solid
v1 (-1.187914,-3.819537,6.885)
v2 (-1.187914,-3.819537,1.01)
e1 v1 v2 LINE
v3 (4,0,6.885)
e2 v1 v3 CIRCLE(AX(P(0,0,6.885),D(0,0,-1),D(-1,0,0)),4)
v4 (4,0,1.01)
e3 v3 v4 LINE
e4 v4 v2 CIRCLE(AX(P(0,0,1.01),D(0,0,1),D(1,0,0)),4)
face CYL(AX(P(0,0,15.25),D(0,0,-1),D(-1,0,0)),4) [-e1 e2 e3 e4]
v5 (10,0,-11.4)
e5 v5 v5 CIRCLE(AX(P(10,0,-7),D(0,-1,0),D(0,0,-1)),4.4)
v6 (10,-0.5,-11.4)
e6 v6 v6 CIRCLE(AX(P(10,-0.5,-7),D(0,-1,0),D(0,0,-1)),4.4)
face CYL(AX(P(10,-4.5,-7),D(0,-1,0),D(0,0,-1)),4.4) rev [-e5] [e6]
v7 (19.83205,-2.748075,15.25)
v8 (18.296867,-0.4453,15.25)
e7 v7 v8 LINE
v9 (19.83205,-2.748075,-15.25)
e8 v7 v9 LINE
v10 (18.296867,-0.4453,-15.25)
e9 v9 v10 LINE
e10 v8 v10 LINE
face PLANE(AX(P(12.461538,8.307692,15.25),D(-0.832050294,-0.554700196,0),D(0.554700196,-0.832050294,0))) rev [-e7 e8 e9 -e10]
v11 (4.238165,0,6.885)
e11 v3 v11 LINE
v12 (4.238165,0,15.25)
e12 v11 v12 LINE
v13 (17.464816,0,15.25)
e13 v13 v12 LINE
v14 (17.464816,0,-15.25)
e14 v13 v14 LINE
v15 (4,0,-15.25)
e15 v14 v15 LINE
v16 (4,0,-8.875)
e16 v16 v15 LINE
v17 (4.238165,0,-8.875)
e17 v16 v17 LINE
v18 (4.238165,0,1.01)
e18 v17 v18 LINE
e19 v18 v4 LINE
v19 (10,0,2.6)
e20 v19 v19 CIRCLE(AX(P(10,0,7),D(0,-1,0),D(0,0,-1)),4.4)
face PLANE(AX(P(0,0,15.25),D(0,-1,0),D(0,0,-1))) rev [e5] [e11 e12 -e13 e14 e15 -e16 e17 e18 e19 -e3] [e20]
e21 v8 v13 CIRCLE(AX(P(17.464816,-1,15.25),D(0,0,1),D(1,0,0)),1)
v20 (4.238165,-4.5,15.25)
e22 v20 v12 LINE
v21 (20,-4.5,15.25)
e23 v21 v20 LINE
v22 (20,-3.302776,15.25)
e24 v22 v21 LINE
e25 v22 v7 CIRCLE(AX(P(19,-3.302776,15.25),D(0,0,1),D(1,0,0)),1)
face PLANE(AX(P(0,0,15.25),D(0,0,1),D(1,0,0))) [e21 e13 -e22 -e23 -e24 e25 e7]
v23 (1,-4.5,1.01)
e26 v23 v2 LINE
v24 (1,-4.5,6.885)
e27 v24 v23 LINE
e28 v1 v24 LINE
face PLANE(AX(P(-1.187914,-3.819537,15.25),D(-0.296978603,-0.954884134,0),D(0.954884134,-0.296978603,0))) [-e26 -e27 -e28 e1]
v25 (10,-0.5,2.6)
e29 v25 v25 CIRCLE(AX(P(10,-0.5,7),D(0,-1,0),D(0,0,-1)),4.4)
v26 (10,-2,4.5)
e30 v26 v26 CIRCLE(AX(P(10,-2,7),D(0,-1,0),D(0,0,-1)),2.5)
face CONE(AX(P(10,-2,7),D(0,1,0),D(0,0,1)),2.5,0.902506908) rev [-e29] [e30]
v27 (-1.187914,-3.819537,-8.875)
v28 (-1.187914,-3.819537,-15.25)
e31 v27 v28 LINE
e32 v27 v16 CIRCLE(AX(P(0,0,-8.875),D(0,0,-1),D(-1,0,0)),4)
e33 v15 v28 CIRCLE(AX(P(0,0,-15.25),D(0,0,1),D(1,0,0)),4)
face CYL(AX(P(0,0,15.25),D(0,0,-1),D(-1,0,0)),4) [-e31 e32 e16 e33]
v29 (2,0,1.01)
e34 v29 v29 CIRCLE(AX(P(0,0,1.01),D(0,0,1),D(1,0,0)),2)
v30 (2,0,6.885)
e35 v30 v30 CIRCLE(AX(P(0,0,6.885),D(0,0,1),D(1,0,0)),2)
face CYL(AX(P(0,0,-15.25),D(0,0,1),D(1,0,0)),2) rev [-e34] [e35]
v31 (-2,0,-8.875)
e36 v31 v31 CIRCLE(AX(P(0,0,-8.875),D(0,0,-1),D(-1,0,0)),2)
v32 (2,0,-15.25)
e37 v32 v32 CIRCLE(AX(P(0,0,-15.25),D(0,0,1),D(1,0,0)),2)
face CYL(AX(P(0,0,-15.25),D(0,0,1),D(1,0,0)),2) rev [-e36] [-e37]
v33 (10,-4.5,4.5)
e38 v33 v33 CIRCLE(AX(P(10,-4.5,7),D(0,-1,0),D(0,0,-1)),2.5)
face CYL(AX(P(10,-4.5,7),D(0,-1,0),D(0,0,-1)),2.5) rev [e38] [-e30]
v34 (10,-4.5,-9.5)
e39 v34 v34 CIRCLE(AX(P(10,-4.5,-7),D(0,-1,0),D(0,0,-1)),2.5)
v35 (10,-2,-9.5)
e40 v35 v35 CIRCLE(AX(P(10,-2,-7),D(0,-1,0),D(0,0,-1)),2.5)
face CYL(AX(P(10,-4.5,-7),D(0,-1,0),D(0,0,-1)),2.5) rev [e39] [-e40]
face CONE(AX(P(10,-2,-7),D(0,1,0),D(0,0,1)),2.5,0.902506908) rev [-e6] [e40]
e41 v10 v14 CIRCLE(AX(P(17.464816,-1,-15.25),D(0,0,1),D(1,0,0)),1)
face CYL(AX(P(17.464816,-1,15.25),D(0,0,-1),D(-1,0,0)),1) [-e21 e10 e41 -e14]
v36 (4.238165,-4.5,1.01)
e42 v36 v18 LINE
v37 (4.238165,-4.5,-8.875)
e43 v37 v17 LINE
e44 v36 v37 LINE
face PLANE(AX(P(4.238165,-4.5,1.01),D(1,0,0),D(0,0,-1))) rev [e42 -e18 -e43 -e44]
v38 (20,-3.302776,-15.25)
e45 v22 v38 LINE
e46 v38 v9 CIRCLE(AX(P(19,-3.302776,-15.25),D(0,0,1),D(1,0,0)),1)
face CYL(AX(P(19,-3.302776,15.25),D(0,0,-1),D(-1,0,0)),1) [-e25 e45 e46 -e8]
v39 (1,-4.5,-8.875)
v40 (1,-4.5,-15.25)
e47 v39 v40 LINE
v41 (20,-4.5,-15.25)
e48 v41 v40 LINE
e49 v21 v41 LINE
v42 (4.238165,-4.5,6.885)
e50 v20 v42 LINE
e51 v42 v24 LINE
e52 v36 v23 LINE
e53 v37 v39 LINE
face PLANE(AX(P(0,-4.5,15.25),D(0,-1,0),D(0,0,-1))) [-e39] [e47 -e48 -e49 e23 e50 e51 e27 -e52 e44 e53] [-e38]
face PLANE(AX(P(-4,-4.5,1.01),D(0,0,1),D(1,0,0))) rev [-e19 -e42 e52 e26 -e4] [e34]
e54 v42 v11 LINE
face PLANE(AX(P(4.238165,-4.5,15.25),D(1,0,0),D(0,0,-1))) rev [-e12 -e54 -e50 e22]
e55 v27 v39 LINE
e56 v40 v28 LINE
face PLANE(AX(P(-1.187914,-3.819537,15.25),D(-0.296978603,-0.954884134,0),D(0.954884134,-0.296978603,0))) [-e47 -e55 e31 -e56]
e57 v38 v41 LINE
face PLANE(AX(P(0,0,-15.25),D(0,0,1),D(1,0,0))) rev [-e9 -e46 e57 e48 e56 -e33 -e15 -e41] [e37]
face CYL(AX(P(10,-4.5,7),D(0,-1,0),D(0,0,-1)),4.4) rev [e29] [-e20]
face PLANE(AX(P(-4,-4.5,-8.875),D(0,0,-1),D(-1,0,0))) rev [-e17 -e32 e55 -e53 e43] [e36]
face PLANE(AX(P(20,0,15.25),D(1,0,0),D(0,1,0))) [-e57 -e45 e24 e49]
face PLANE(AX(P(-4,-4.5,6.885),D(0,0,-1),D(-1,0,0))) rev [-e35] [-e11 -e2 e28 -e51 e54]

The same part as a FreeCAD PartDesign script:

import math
import FreeCAD as App
import Part
import Sketcher
from FreeCAD import Vector

doc = App.newDocument("Part")
body = doc.addObject("PartDesign::Body", "Body")

# Sketch on XY plane
sketch1 = body.newObject("Sketcher::SketchObject", "Sketch")
sketch1.AttachmentSupport = (doc.getObject("XY_Plane"), [""])
sketch1.MapMode = "FlatFace"
sketch1.addGeometry([
    Part.LineSegment(Vector(17.464816, 0, 0), Vector(4, 0, 0)),  # 0
    Part.ArcOfCircle(Part.Circle(Vector(0, 0, 0), Vector(0, 0, 1), 4), math.radians(0), math.radians(252.723779)),  # 1
    Part.LineSegment(Vector(-1.187914, -3.819537, 0), Vector(1, -4.5, 0)),  # 2
    Part.LineSegment(Vector(1, -4.5, 0), Vector(20, -4.5, 0)),  # 3
    Part.LineSegment(Vector(20, -4.5, 0), Vector(20, -3.302776, 0)),  # 4
    Part.ArcOfCircle(Part.Circle(Vector(19, -3.302776, 0), Vector(0, 0, 1), 1), math.radians(0), math.radians(33.690067)),  # 5
    Part.LineSegment(Vector(19.83205, -2.748075, 0), Vector(18.296867, -0.4453, 0)),  # 6
    Part.ArcOfCircle(Part.Circle(Vector(17.464816, -1, 0), Vector(0, 0, 1), 1), math.radians(33.690067), math.radians(90)),  # 7
], False)
sketch1.addConstraint([
    Sketcher.Constraint("Coincident", 0, 2, 1, 1),
    Sketcher.Constraint("Tangent", 1, 2, 2, 1),
    Sketcher.Constraint("Coincident", 2, 2, 3, 1),
    Sketcher.Constraint("Coincident", 3, 2, 4, 1),
    Sketcher.Constraint("Tangent", 4, 2, 5, 1),
    Sketcher.Constraint("Tangent", 5, 2, 6, 1),
    Sketcher.Constraint("Tangent", 6, 2, 7, 1),
    Sketcher.Constraint("Tangent", 7, 2, 0, 1),
    Sketcher.Constraint("Horizontal", 0),
    Sketcher.Constraint("Horizontal", 3),
    Sketcher.Constraint("Vertical", 4),
    Sketcher.Constraint("Coincident", 1, 3, -1, 1),
    Sketcher.Constraint("Equal", 5, 7),
    Sketcher.Constraint("PointOnObject", 0, 2, -1),
    Sketcher.Constraint("Radius", 1, 4.0),
    Sketcher.Constraint("Radius", 5, 1.0),
    Sketcher.Constraint("DistanceX", 3, 1, 3, 2, 19.0),
    Sketcher.Constraint("DistanceX", -1, 1, 5, 3, 19.0),
    Sketcher.Constraint("DistanceY", 2, 2, -1, 1, 4.5),
    Sketcher.Constraint("DistanceY", 6, 2, -1, 1, 0.4453),
    Sketcher.Constraint("Distance", 6, 2.767592),
])
pad1 = body.newObject("PartDesign::Pad", "Pad")
pad1.Profile = sketch1
pad1.Length = 30.5
pad1.Midplane = True

# Sketch on XZ plane
sketch2 = body.newObject("Sketcher::SketchObject", "Sketch001")
sketch2.AttachmentSupport = (doc.getObject("XZ_Plane"), [""])
sketch2.MapMode = "FlatFace"
sketch2.addGeometry([
    Part.LineSegment(Vector(-4, 6.885, 0), Vector(-4, 15.25, 0)),  # 0
    Part.LineSegment(Vector(-4, 15.25, 0), Vector(4.238165, 15.25, 0)),  # 1
    Part.LineSegment(Vector(4.238165, 15.25, 0), Vector(4.238165, 6.885, 0)),  # 2
    Part.LineSegment(Vector(4.238165, 6.885, 0), Vector(-4, 6.885, 0)),  # 3
    Part.LineSegment(Vector(-4, -8.875, 0), Vector(-4, 1.01, 0)),  # 4
    Part.LineSegment(Vector(-4, 1.01, 0), Vector(4.238165, 1.01, 0)),  # 5
    Part.LineSegment(Vector(4.238165, 1.01, 0), Vector(4.238165, -8.875, 0)),  # 6
    Part.LineSegment(Vector(4.238165, -8.875, 0), Vector(-4, -8.875, 0)),  # 7
], False)
sketch2.addConstraint([
    Sketcher.Constraint("Coincident", 0, 2, 1, 1),
    Sketcher.Constraint("Coincident", 1, 2, 2, 1),
    Sketcher.Constraint("Coincident", 2, 2, 3, 1),
    Sketcher.Constraint("Coincident", 3, 2, 0, 1),
    Sketcher.Constraint("Coincident", 4, 2, 5, 1),
    Sketcher.Constraint("Coincident", 5, 2, 6, 1),
    Sketcher.Constraint("Coincident", 6, 2, 7, 1),
    Sketcher.Constraint("Coincident", 7, 2, 4, 1),
    Sketcher.Constraint("Vertical", 0),
    Sketcher.Constraint("Horizontal", 1),
    Sketcher.Constraint("Vertical", 2),
    Sketcher.Constraint("Horizontal", 3),
    Sketcher.Constraint("Vertical", 4),
    Sketcher.Constraint("Horizontal", 5),
    Sketcher.Constraint("Vertical", 6),
    Sketcher.Constraint("Horizontal", 7),
    Sketcher.Constraint("Vertical", 3, 2, 4, 2),
    Sketcher.Constraint("Vertical", 2, 2, 5, 2),
    Sketcher.Constraint("DistanceX", 0, 2, -1, 1, 4.0),
    Sketcher.Constraint("DistanceY", 0, 1, 0, 2, 8.365),
    Sketcher.Constraint("DistanceY", 4, 1, 4, 2, 9.885),
    Sketcher.Constraint("DistanceY", -1, 1, 0, 2, 15.25),
    Sketcher.Constraint("DistanceY", -1, 1, 4, 2, 1.01),
    Sketcher.Constraint("DistanceX", 1, 1, 1, 2, 8.238165),
])
pocket1 = body.newObject("PartDesign::Pocket", "Pocket")
pocket1.Profile = sketch2
pocket1.Type = "ThroughAll"
pocket1.Midplane = True

# Sketch on XY plane
sketch3 = body.newObject("Sketcher::SketchObject", "Sketch002")
sketch3.AttachmentSupport = (doc.getObject("XY_Plane"), [""])
sketch3.MapMode = "FlatFace"
sketch3.AttachmentOffset = App.Placement(Vector(0, 0, 6.885), App.Rotation())
sketch3.addGeometry(Part.Circle(Vector(0, 0, 0), Vector(0, 0, 1), 2), False)
sketch3.addConstraint([
    Sketcher.Constraint("Coincident", 0, 3, -1, 1),
    Sketcher.Constraint("Diameter", 0, 4.0),
])
pocket2 = body.newObject("PartDesign::Pocket", "Pocket001")
pocket2.Profile = sketch3
pocket2.Type = "ThroughAll"

# Sketch on XY plane
sketch4 = body.newObject("Sketcher::SketchObject", "Sketch003")
sketch4.AttachmentSupport = (doc.getObject("XY_Plane"), [""])
sketch4.MapMode = "FlatFace"
sketch4.AttachmentOffset = App.Placement(Vector(0, 0, 7), App.Rotation())
sketch4.addGeometry([
    Part.LineSegment(Vector(10, 0, 0), Vector(10, -4.5, 0)),  # 0
    Part.LineSegment(Vector(10, -4.5, 0), Vector(12.5, -4.5, 0)),  # 1
    Part.LineSegment(Vector(12.5, -4.5, 0), Vector(12.5, -2, 0)),  # 2
    Part.LineSegment(Vector(12.5, -2, 0), Vector(14.4, -0.5, 0)),  # 3
    Part.LineSegment(Vector(14.4, -0.5, 0), Vector(14.4, 0, 0)),  # 4
    Part.LineSegment(Vector(14.4, 0, 0), Vector(10, 0, 0)),  # 5
], False)
sketch4.addGeometry(Part.LineSegment(Vector(10, -4.5, 0), Vector(10, 0, 0)), True)  # axis
sketch4.addConstraint([
    Sketcher.Constraint("Coincident", 0, 2, 1, 1),
    Sketcher.Constraint("Coincident", 1, 2, 2, 1),
    Sketcher.Constraint("Coincident", 2, 2, 3, 1),
    Sketcher.Constraint("Coincident", 3, 2, 4, 1),
    Sketcher.Constraint("Coincident", 4, 2, 5, 1),
    Sketcher.Constraint("Coincident", 5, 2, 0, 1),
    Sketcher.Constraint("Vertical", 0),
    Sketcher.Constraint("Horizontal", 1),
    Sketcher.Constraint("Vertical", 2),
    Sketcher.Constraint("Vertical", 4),
    Sketcher.Constraint("Horizontal", 5),
    Sketcher.Constraint("Vertical", 6),
    Sketcher.Constraint("Coincident", 6, 1, 0, 2),
    Sketcher.Constraint("PointOnObject", 4, 2, -1),
    Sketcher.Constraint("PointOnObject", 6, 2, -1),
    Sketcher.Constraint("Equal", 1, 2),
    Sketcher.Constraint("DistanceX", 1, 1, 1, 2, 2.5),
    Sketcher.Constraint("DistanceX", 5, 2, 5, 1, 4.4),
    Sketcher.Constraint("DistanceY", 0, 2, 0, 1, 4.5),
    Sketcher.Constraint("DistanceY", 4, 1, 4, 2, 0.5),
    Sketcher.Constraint("DistanceX", -1, 1, 0, 2, 10.0),
])
groove = body.newObject("PartDesign::Groove", "Groove")
groove.Profile = sketch4
groove.ReferenceAxis = (sketch4, ["Axis0"])
groove.Angle = 360
doc.recompute()

linearpattern = body.newObject("PartDesign::LinearPattern", "LinearPattern")
linearpattern.Originals = [groove]
linearpattern.Direction = (doc.getObject("Z_Axis"), [""])
linearpattern.Mode = "offset"
linearpattern.Offset = 14
linearpattern.Occurrences = 2
linearpattern.Reversed = True
body.Tip = linearpattern

doc.recompute()
